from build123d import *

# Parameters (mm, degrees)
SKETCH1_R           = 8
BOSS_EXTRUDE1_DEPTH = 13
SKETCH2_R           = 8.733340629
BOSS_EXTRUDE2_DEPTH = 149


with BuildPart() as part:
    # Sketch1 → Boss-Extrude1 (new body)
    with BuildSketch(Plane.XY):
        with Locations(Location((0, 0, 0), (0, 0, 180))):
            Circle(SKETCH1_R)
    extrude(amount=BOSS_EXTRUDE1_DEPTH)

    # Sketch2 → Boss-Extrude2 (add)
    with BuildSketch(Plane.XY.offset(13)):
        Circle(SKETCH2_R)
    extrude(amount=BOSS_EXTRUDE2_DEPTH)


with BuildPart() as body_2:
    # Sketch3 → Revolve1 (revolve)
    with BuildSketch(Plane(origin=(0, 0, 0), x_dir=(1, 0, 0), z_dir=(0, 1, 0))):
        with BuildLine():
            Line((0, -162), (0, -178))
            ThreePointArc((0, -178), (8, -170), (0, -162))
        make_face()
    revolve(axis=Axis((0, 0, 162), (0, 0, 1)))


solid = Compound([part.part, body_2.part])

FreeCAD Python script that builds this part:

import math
import FreeCAD as App
import Part
import Sketcher
from FreeCAD import Vector

doc = App.newDocument("Part")
body = doc.addObject("PartDesign::Body", "Body")

# Sketch on XY plane
sketch1 = body.newObject("Sketcher::SketchObject", "Sketch")
sketch1.AttachmentSupport = (doc.getObject("XY_Plane"), [""])
sketch1.MapMode = "FlatFace"
sketch1.addGeometry(Part.Circle(Vector(0, 0, 0), Vector(0, 0, 1), 8), False)
sketch1.addConstraint(Sketcher.Constraint("Coincident", 0, 3, -1, 1))
sketch1.addConstraint(Sketcher.Constraint("Diameter", 0, 16.0))
pad1 = body.newObject("PartDesign::Pad", "Pad")
pad1.Profile = sketch1
pad1.Length = 13

# Sketch on XY plane
sketch2 = body.newObject("Sketcher::SketchObject", "Sketch001")
sketch2.AttachmentSupport = (doc.getObject("XY_Plane"), [""])
sketch2.MapMode = "FlatFace"
sketch2.AttachmentOffset = App.Placement(Vector(0, 0, 13), App.Rotation())
sketch2.addGeometry(Part.Circle(Vector(0, 0, 0), Vector(0, 0, 1), 9), False)
sketch2.addConstraint(Sketcher.Constraint("Coincident", 0, 3, -1, 1))
sketch2.addConstraint(Sketcher.Constraint("Diameter", 0, 17.466681))
pad2 = body.newObject("PartDesign::Pad", "Pad001")
pad2.Profile = sketch2
pad2.Length = 149
body2 = doc.addObject("PartDesign::Body", "Body001")

# Sketch on XZ plane
sketch3 = body2.newObject("Sketcher::SketchObject", "Sketch002")
sketch3.AttachmentSupport = (doc.getObject("XZ_Plane001"), [""])
sketch3.MapMode = "FlatFace"
sketch3.addGeometry(Part.LineSegment(Vector(0, 162, 0), Vector(0, 178, 0)), False)
sketch3.addGeometry(Part.ArcOfCircle(Part.Circle(Vector(0, 170, 0), Vector(0, 0, 1), 8), math.radians(-90), math.radians(90)), False)
sketch3.addConstraint(Sketcher.Constraint("Coincident", 0, 1, 1, 1))
sketch3.addConstraint(Sketcher.Constraint("Coincident", 1, 2, 0, 2))
sketch3.addConstraint(Sketcher.Constraint("Vertical", 0))
sketch3.addConstraint(Sketcher.Constraint("PointOnObject", 1, 3, -2))
sketch3.addConstraint(Sketcher.Constraint("PointOnObject", 0, 1, -2))
sketch3.addConstraint(Sketcher.Constraint("Radius", 1, 8.0))
sketch3.addConstraint(Sketcher.Constraint("DistanceY", -1, 1, 1, 3, 170.0))
revolution = body2.newObject("PartDesign::Revolution", "Revolution")
revolution.Profile = sketch3
revolution.ReferenceAxis = (sketch3, ["V_Axis"])
revolution.Angle = 360

doc.recompute()
